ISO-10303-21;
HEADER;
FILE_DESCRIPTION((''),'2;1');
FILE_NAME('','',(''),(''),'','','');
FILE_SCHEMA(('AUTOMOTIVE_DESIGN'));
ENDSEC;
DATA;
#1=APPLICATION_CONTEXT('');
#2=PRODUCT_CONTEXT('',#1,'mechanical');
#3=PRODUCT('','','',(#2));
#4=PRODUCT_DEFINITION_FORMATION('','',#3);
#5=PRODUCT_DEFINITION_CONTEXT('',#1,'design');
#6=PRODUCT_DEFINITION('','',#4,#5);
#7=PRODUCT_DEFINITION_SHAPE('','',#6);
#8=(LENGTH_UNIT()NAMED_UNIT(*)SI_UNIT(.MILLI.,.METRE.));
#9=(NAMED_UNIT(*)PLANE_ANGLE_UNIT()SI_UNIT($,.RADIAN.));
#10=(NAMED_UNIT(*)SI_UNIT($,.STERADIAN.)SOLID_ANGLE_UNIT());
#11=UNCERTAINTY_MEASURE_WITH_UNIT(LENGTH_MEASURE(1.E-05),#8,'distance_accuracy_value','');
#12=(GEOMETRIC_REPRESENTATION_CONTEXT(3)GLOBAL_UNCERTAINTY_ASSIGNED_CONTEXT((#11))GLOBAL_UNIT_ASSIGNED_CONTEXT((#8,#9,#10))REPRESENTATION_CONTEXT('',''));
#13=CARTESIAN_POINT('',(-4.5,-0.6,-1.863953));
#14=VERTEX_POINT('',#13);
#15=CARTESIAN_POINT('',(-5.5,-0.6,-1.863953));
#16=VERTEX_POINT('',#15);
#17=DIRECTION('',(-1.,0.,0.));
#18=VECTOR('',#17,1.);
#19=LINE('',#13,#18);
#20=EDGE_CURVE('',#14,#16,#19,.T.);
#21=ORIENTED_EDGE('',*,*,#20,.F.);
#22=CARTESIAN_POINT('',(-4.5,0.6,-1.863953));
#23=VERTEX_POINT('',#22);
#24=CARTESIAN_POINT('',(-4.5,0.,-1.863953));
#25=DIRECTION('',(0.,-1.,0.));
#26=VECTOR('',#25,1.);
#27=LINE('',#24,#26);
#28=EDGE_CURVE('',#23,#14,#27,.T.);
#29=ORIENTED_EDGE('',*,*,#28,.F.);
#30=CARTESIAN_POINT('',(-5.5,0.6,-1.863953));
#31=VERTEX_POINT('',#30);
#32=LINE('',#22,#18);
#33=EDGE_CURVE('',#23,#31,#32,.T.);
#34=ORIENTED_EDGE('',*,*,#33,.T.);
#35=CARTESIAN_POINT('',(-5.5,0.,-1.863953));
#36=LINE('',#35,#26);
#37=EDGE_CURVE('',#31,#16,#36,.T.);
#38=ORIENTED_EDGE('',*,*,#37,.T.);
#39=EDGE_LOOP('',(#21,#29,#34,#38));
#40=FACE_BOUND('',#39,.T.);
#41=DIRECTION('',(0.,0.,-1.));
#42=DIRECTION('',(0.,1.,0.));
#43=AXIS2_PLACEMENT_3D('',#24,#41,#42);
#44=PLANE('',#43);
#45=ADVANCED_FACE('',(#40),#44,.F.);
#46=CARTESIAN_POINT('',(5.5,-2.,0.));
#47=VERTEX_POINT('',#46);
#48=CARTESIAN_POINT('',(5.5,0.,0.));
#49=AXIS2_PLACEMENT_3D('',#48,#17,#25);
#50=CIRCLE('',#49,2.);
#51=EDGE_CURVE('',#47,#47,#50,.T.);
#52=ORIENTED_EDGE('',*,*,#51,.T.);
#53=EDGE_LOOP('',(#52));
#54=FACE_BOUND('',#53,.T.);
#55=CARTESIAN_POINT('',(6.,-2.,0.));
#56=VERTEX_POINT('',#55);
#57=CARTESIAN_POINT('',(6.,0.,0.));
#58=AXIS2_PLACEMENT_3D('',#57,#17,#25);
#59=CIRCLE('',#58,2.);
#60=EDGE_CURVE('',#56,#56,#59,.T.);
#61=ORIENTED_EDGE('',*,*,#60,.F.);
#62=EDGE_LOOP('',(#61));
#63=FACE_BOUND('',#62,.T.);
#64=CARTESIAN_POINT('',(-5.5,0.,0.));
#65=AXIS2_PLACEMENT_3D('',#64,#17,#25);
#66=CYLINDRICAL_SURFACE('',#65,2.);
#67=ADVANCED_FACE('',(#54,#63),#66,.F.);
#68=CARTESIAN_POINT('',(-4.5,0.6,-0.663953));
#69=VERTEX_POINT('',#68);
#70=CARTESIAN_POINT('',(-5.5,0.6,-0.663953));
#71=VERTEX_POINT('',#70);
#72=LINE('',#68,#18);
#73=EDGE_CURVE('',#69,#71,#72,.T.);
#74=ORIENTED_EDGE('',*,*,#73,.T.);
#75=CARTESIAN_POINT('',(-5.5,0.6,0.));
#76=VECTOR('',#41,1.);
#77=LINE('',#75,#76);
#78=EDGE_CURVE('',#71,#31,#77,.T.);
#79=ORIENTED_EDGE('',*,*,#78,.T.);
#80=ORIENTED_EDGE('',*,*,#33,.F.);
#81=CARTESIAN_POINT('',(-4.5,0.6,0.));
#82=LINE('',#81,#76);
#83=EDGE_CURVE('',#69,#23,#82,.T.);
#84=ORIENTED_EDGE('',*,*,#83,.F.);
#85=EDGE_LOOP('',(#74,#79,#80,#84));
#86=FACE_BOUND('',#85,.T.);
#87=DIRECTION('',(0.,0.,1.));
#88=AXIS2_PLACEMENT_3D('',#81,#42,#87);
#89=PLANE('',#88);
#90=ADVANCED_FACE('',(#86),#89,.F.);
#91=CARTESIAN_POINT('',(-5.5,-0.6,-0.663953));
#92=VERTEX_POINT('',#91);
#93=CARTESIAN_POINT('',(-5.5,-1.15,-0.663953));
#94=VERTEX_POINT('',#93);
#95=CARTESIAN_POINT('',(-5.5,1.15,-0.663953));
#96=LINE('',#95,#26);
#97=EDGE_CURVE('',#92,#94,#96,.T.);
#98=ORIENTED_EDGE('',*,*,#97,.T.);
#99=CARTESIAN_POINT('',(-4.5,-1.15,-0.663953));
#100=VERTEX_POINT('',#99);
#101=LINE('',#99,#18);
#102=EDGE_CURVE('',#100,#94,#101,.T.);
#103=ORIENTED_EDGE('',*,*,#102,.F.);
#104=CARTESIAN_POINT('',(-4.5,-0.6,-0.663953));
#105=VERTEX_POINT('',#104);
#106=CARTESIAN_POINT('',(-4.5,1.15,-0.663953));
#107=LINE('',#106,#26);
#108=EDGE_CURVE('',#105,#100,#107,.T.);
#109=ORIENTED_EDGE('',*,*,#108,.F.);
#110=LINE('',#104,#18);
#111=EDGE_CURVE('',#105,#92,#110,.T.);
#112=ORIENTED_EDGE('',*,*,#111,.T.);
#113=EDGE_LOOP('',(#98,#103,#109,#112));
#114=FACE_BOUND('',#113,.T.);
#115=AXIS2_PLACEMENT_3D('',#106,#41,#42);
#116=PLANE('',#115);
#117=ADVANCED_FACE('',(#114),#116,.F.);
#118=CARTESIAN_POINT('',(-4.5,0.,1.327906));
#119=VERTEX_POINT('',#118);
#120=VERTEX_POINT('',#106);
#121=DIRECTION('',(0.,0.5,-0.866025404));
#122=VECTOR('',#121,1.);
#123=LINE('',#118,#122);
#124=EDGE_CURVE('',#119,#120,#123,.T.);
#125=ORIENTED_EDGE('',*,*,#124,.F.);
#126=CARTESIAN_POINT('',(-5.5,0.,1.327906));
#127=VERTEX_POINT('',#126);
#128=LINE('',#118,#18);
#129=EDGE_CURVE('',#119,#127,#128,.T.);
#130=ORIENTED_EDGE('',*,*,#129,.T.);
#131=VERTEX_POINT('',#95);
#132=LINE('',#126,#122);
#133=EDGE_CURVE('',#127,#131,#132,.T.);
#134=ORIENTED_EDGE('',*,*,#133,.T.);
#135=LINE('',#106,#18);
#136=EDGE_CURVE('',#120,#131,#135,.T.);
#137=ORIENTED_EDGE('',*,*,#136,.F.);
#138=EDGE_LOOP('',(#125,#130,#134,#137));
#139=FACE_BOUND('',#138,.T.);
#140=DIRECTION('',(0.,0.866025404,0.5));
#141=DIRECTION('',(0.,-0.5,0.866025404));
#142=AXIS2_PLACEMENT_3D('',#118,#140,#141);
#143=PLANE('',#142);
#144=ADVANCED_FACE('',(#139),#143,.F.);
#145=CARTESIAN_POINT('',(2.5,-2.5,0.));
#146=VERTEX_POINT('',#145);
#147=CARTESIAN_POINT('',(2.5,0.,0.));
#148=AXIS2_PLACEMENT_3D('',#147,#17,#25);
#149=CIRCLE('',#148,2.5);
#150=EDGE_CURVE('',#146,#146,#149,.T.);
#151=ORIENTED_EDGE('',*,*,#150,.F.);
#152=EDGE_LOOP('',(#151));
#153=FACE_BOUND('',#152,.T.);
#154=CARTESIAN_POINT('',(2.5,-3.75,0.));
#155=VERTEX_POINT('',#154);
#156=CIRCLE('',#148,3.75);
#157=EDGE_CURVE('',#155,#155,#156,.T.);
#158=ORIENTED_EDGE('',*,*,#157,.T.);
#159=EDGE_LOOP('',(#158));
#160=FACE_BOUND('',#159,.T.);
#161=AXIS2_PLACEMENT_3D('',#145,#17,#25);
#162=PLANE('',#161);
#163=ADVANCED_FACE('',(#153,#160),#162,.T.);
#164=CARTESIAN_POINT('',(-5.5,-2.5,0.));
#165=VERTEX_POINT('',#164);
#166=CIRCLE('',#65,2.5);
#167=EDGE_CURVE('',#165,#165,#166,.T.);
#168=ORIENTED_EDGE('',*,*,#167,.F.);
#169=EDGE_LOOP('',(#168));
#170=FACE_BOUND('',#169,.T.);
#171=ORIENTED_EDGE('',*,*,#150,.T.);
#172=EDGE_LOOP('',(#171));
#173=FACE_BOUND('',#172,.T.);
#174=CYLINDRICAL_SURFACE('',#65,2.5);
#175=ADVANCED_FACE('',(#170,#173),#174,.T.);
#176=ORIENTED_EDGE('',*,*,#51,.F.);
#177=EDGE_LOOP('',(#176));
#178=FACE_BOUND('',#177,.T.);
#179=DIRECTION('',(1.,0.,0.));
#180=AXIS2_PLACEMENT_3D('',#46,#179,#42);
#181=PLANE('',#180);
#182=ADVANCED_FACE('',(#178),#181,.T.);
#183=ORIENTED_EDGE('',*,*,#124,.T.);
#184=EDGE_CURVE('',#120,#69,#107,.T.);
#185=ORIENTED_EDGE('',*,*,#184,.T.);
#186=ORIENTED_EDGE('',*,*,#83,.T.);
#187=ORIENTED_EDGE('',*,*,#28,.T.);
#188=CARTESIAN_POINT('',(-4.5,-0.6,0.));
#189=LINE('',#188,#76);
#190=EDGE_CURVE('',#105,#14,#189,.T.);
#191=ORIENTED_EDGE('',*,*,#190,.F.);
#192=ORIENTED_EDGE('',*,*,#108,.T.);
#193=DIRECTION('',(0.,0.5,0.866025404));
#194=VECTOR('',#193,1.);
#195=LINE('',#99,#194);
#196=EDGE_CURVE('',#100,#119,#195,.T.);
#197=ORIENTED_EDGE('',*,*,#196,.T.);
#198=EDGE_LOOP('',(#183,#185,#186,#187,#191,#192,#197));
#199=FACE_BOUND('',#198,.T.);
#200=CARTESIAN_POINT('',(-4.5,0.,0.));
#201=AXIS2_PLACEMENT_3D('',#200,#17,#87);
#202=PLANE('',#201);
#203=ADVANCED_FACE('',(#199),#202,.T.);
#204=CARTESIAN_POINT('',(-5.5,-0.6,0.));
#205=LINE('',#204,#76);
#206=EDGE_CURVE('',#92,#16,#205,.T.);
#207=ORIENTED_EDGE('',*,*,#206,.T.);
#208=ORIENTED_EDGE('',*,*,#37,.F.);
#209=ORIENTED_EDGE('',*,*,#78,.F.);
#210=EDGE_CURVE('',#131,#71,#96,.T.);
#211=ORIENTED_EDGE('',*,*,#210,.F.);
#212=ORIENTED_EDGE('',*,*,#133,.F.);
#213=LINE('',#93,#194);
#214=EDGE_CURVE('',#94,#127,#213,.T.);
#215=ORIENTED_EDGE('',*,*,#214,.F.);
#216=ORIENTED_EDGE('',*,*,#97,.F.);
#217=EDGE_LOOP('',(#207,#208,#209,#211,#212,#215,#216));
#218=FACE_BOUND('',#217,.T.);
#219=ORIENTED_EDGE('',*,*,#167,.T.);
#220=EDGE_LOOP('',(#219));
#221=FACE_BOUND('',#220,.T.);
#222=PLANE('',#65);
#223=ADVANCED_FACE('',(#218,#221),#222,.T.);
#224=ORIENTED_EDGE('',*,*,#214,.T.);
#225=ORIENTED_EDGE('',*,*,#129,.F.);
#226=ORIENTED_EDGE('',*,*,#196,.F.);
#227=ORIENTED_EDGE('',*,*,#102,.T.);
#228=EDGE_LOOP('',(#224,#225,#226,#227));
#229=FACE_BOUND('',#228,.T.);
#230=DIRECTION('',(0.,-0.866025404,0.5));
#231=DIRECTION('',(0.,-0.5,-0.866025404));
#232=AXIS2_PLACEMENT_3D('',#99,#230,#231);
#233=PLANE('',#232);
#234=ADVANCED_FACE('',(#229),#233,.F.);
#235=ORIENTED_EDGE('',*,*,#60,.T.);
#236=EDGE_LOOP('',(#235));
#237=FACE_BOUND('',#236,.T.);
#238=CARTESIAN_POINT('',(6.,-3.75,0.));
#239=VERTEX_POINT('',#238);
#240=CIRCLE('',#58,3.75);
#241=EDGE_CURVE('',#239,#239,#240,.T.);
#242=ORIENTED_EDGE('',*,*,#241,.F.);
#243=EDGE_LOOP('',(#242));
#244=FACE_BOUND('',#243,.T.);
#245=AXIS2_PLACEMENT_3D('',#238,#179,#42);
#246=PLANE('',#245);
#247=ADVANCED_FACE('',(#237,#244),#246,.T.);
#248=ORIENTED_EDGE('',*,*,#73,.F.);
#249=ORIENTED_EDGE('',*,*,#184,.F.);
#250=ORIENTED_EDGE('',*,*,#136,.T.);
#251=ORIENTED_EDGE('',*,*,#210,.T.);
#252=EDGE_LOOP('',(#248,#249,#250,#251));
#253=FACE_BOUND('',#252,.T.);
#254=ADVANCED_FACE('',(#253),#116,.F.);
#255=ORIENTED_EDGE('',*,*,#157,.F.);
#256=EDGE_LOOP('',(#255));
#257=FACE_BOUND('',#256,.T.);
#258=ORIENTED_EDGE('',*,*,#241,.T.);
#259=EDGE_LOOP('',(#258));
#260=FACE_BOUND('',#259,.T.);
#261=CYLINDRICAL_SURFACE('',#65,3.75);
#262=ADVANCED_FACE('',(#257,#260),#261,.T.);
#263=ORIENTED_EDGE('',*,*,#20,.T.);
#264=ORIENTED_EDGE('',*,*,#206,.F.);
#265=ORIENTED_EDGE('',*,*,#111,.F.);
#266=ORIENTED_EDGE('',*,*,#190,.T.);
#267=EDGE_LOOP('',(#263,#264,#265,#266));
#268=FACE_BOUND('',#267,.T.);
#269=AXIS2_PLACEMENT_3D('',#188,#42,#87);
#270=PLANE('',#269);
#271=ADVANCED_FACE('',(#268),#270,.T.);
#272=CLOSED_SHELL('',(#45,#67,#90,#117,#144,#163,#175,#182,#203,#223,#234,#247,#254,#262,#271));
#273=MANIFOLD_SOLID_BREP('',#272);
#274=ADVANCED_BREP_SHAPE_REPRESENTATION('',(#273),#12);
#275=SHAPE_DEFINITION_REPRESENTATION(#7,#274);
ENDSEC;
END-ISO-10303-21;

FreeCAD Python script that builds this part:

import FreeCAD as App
import Part
import Sketcher
Q = App.Units.Quantity

doc = App.newDocument("Part")
params = doc.addObject("Spreadsheet::Sheet", "Params")
for row, (alias, value) in enumerate([
    ("sketch1_width", "8 mm"),
    ("sketch1_width2", "11 mm"),
    ("sketch1_height", "2 mm"),
    ("sketch1_width3", "3.5 mm"),
    ("sketch1_height2", "2.5 mm"),
    ("revolution_angle", "360 deg"),
    ("sketch2_width", "1.2 mm"),
    ("sketch2_length", "2.3 mm"),
    ("pocket1_length", "1 mm"),
], start=1):
    params.set(f"A{row}", alias)
    params.set(f"B{row}", "=" + value)
    params.setAlias(f"B{row}", alias)

body = doc.addObject("PartDesign::Body", "Body")

sketch1 = body.newObject("Sketcher::SketchObject", "Sketch")
sketch1.AttachmentSupport = (doc.getObject("XY_Plane"), [""])
sketch1.MapMode = "FlatFace"
sketch1.addGeometry(Part.LineSegment(App.Vector(-5.5, 0, 0), App.Vector(-5.5, -2.5, 0)), False)
sketch1.addGeometry(Part.LineSegment(App.Vector(-5.5, -2.5, 0), App.Vector(2.5, -2.5, 0)), False)
sketch1.addGeometry(Part.LineSegment(App.Vector(2.5, -2.5, 0), App.Vector(2.5, -3.8, 0)), False)
sketch1.addGeometry(Part.LineSegment(App.Vector(2.5, -3.8, 0), App.Vector(6, -3.8, 0)), False)
sketch1.addGeometry(Part.LineSegment(App.Vector(6, -3.8, 0), App.Vector(6, -2, 0)), False)
sketch1.addGeometry(Part.LineSegment(App.Vector(6, -2, 0), App.Vector(5.5, -2, 0)), False)
sketch1.addGeometry(Part.LineSegment(App.Vector(5.5, -2, 0), App.Vector(5.5, 0, 0)), False)
sketch1.addGeometry(Part.LineSegment(App.Vector(5.5, 0, 0), App.Vector(-5.5, 0, 0)), False)
sketch1.addConstraint(Sketcher.Constraint("Coincident", 0, 2, 1, 1))
sketch1.addConstraint(Sketcher.Constraint("Coincident", 1, 2, 2, 1))
sketch1.addConstraint(Sketcher.Constraint("Coincident", 2, 2, 3, 1))
sketch1.addConstraint(Sketcher.Constraint("Coincident", 3, 2, 4, 1))
sketch1.addConstraint(Sketcher.Constraint("Coincident", 4, 2, 5, 1))
sketch1.addConstraint(Sketcher.Constraint("Coincident", 5, 2, 6, 1))
sketch1.addConstraint(Sketcher.Constraint("Coincident", 6, 2, 7, 1))
sketch1.addConstraint(Sketcher.Constraint("Coincident", 7, 2, 0, 1))
sketch1.addConstraint(Sketcher.Constraint("Vertical", 0))
sketch1.addConstraint(Sketcher.Constraint("Horizontal", 1))
sketch1.addConstraint(Sketcher.Constraint("Vertical", 2))
sketch1.addConstraint(Sketcher.Constraint("Horizontal", 3))
sketch1.addConstraint(Sketcher.Constraint("Vertical", 4))
sketch1.addConstraint(Sketcher.Constraint("Horizontal", 5))
sketch1.addConstraint(Sketcher.Constraint("Vertical", 6))
sketch1.addConstraint(Sketcher.Constraint("Horizontal", 7))
sketch1.addConstraint(Sketcher.Constraint("Symmetric", 6, 2, 7, 2, -1, 1))
sketch1.addConstraint(Sketcher.Constraint("DistanceX", 1, 1, 1, 2, Q("8 mm")))
sketch1.addConstraint(Sketcher.Constraint("DistanceX", 7, 2, 7, 1, Q("11 mm")))
sketch1.addConstraint(Sketcher.Constraint("DistanceY", 6, 1, 6, 2, Q("2 mm")))
sketch1.addConstraint(Sketcher.Constraint("DistanceX", 3, 1, 3, 2, Q("3.5 mm")))
sketch1.addConstraint(Sketcher.Constraint("DistanceY", 0, 2, 0, 1, Q("2.5 mm")))
sketch1.addConstraint(Sketcher.Constraint("DistanceY", 2, 2, 2, 1, Q("1.25 mm")))
sketch1.setExpression("Constraints[17]", "Params.sketch1_width")
sketch1.setExpression("Constraints[18]", "Params.sketch1_width2")
sketch1.setExpression("Constraints[19]", "Params.sketch1_height")
sketch1.setExpression("Constraints[20]", "Params.sketch1_width3")
sketch1.setExpression("Constraints[21]", "Params.sketch1_height2")
revolution = body.newObject("PartDesign::Revolution", "Revolution")
revolution.Profile = sketch1
revolution.ReferenceAxis = (sketch1, ["H_Axis"])
revolution.setExpression("Angle", "Params.revolution_angle")

sketch2 = body.newObject("Sketcher::SketchObject", "Sketch001")
sketch2.AttachmentSupport = (doc.getObject("YZ_Plane"), [""])
sketch2.MapMode = "FlatFace"
sketch2.AttachmentOffset = App.Placement(App.Vector(0, 0, -5.5), App.Rotation())
sketch2.addGeometry(Part.LineSegment(App.Vector(-1.1, -0.7, 0), App.Vector(0, 1.3, 0)), False)
sketch2.addGeometry(Part.LineSegment(App.Vector(0, 1.3, 0), App.Vector(1.1, -0.7, 0)), False)
sketch2.addGeometry(Part.LineSegment(App.Vector(1.1, -0.7, 0), App.Vector(0.6, -0.7, 0)), False)
sketch2.addGeometry(Part.LineSegment(App.Vector(0.6, -0.7, 0), App.Vector(0.6, -1.9, 0)), False)
sketch2.addGeometry(Part.LineSegment(App.Vector(0.6, -1.9, 0), App.Vector(-0.6, -1.9, 0)), False)
sketch2.addGeometry(Part.LineSegment(App.Vector(-0.6, -1.9, 0), App.Vector(-0.6, -0.7, 0)), False)
sketch2.addGeometry(Part.LineSegment(App.Vector(-0.6, -0.7, 0), App.Vector(-1.1, -0.7, 0)), False)
sketch2.addConstraint(Sketcher.Constraint("Coincident", 0, 2, 1, 1))
sketch2.addConstraint(Sketcher.Constraint("Coincident", 1, 2, 2, 1))
sketch2.addConstraint(Sketcher.Constraint("Coincident", 2, 2, 3, 1))
sketch2.addConstraint(Sketcher.Constraint("Coincident", 3, 2, 4, 1))
sketch2.addConstraint(Sketcher.Constraint("Coincident", 4, 2, 5, 1))
sketch2.addConstraint(Sketcher.Constraint("Coincident", 5, 2, 6, 1))
sketch2.addConstraint(Sketcher.Constraint("Coincident", 6, 2, 0, 1))
sketch2.addConstraint(Sketcher.Constraint("Horizontal", 2))
sketch2.addConstraint(Sketcher.Constraint("Vertical", 3))
sketch2.addConstraint(Sketcher.Constraint("Horizontal", 4))
sketch2.addConstraint(Sketcher.Constraint("Vertical", 5))
sketch2.addConstraint(Sketcher.Constraint("Horizontal", 6))
sketch2.addConstraint(Sketcher.Constraint("Symmetric", 2, 2, 5, 2, -2))
sketch2.addConstraint(Sketcher.Constraint("PointOnObject", 0, 2, -2))
sketch2.addConstraint(Sketcher.Constraint("Equal", 2, 6))
sketch2.addConstraint(Sketcher.Constraint("Equal", 4, 3))
sketch2.addConstraint(Sketcher.Constraint("Angle", 0, Q("60 deg")))
sketch2.addConstraint(Sketcher.Constraint("DistanceX", 4, 2, 4, 1, Q("1.2 mm")))
sketch2.addConstraint(Sketcher.Constraint("Distance", 0, Q("2.3 mm")))
sketch2.addConstraint(Sketcher.Constraint("DistanceY", -1, 1, 0, 2, Q("1.327906 mm")))
sketch2.setExpression("Constraints[17]", "Params.sketch2_width")
sketch2.setExpression("Constraints[18]", "Params.sketch2_length")
pocket1 = body.newObject("PartDesign::Pocket", "Pocket")
pocket1.Profile = sketch2
pocket1.setExpression("Length", "Params.pocket1_length")
pocket1.Reversed = True

doc.recompute()
